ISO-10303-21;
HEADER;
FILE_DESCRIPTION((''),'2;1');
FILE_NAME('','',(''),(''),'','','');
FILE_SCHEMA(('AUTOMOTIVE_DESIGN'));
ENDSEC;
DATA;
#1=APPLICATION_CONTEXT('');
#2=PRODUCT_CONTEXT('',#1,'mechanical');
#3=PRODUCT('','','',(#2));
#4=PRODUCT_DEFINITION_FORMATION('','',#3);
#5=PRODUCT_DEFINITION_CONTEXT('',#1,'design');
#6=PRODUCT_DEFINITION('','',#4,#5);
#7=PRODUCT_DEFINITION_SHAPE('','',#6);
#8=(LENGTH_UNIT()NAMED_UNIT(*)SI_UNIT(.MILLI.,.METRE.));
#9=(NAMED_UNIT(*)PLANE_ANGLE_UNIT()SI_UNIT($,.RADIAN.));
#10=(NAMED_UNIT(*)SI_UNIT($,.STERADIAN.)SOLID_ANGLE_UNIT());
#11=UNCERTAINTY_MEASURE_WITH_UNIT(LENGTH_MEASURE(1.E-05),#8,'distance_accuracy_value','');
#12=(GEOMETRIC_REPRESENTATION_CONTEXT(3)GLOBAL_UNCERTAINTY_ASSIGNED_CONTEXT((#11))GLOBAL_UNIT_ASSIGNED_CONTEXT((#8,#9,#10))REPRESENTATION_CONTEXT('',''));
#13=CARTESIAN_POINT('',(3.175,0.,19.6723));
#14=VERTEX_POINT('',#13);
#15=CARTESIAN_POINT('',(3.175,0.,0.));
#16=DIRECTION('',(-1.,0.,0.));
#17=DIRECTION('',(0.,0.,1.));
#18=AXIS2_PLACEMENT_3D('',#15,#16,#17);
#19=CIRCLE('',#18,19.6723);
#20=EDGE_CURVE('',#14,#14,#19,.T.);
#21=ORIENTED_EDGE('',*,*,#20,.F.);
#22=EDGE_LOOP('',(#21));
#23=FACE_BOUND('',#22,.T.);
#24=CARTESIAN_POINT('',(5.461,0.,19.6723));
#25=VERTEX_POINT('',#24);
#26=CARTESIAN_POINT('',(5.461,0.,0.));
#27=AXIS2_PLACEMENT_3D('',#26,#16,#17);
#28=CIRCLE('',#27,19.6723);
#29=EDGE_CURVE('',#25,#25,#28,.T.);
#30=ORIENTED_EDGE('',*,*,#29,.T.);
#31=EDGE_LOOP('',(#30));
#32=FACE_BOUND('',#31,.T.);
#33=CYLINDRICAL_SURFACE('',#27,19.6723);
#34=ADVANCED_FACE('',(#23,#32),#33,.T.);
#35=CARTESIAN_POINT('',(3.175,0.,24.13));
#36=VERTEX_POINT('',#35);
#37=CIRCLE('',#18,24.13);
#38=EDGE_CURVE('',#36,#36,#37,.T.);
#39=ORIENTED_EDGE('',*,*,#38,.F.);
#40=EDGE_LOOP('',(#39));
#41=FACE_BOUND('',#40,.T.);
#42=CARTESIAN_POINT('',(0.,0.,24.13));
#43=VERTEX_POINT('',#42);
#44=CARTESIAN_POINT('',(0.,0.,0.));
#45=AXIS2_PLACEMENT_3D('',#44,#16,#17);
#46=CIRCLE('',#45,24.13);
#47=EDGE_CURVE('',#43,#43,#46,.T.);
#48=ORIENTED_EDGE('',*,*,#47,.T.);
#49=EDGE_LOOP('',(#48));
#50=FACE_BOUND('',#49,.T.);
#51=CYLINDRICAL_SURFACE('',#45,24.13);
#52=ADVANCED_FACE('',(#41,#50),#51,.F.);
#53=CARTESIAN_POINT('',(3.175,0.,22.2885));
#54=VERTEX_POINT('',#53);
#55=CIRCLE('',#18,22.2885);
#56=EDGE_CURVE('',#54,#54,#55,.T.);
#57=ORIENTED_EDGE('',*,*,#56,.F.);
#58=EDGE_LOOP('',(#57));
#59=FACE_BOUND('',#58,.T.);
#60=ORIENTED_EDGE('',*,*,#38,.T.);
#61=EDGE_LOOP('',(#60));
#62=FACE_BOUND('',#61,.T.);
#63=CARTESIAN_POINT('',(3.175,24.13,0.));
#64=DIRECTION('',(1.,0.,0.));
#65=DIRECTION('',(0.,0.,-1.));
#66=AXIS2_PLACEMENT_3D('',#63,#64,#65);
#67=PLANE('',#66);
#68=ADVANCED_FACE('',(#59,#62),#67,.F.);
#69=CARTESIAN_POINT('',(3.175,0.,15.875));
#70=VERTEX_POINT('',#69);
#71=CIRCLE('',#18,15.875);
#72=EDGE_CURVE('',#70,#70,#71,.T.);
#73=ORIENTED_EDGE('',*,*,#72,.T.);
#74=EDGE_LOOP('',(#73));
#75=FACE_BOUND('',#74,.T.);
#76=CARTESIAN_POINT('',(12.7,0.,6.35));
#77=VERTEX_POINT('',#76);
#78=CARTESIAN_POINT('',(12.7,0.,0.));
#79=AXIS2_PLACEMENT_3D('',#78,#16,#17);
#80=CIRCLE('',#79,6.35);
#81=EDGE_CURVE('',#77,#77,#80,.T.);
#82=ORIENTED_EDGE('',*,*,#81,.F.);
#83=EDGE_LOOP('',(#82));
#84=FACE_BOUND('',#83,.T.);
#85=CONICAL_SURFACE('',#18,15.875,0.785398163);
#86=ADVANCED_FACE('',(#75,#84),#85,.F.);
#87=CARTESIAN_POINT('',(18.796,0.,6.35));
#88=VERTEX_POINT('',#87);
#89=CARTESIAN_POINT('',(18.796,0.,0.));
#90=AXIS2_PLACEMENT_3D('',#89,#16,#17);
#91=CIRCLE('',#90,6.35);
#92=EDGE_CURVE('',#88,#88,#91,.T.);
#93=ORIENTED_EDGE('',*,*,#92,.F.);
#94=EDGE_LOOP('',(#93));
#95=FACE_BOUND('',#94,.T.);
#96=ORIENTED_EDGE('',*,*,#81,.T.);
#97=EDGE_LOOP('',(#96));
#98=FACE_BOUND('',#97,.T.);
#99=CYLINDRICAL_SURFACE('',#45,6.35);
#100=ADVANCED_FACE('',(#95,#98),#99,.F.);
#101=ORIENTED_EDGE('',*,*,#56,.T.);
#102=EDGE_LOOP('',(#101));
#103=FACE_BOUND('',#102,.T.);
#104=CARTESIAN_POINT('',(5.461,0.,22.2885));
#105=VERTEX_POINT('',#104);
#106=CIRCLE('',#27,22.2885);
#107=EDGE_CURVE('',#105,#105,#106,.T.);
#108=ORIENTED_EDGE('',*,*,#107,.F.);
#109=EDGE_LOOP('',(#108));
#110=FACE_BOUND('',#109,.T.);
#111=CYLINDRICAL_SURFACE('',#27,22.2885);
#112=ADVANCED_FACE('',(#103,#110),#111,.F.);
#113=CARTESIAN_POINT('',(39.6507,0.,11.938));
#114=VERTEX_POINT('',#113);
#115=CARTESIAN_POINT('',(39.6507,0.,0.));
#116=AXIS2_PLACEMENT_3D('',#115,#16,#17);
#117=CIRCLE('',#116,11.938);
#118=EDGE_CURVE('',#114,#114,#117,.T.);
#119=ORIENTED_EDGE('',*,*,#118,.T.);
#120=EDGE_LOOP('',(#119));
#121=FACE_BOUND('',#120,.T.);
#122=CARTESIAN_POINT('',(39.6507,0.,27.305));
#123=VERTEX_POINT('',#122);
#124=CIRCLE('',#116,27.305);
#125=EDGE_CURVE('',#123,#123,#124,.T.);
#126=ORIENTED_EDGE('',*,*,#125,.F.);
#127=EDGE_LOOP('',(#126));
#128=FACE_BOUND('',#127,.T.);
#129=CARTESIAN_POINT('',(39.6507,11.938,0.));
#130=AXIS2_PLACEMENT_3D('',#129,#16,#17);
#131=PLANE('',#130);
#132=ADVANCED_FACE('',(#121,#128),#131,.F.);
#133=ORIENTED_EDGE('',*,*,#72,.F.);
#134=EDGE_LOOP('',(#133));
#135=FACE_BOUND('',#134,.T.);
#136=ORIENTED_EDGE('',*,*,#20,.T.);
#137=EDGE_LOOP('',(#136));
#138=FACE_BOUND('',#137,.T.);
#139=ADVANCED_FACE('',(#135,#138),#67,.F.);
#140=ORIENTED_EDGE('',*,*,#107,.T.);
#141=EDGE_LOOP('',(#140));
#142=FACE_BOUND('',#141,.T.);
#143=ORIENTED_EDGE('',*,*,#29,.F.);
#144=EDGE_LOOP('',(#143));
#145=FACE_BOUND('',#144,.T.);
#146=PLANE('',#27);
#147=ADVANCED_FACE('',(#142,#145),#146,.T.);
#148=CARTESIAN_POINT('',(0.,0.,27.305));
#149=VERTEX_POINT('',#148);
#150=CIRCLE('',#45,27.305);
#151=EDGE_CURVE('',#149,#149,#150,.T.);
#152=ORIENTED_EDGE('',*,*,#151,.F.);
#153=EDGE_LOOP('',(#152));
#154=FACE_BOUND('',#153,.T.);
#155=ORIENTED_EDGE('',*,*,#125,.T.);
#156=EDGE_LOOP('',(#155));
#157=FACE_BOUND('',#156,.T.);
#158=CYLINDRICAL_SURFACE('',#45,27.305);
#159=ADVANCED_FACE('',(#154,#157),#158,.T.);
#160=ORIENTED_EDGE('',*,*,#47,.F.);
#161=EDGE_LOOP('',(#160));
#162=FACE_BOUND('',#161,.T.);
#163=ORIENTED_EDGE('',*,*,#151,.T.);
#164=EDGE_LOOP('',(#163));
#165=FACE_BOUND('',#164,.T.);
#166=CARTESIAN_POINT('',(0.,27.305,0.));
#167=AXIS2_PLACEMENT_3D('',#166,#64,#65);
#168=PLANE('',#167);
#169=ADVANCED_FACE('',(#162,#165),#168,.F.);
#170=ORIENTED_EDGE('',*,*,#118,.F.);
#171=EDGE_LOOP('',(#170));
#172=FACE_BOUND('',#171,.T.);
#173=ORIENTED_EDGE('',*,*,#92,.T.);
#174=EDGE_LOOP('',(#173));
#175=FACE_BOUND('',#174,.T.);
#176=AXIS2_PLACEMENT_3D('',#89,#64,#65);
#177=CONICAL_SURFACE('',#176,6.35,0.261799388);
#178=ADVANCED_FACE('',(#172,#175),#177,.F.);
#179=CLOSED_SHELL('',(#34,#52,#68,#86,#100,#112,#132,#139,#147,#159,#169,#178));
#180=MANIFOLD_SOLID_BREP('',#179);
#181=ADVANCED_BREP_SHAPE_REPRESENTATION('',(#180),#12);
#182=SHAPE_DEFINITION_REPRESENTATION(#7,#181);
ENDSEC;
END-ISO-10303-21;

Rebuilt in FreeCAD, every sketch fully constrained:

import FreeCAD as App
import Part
import Sketcher
from FreeCAD import Vector
Q = App.Units.Quantity


def add_polygon(sketch, points):
    """Adds a closed chain of lines whose ends are joined by coincident constraints."""
    first, n = sketch.GeometryCount, len(points)
    for a, b in zip(points, points[1:] + points[:1]):
        sketch.addGeometry(Part.LineSegment(App.Vector(*a, 0), App.Vector(*b, 0)), False)
    for i in range(n):
        sketch.addConstraint(Sketcher.Constraint("Coincident", first + i, 2, first + (i + 1) % n, 1))

doc = App.newDocument("Part")
body = doc.addObject("PartDesign::Body", "Body")

# Sketch on XY plane
sketch1 = body.newObject("Sketcher::SketchObject", "Sketch")
sketch1.AttachmentSupport = (doc.getObject("XY_Plane"), [""])
sketch1.MapMode = "FlatFace"
add_polygon(sketch1, [(0, 24.1), (3.2, 24.1), (3.2, 15.9), (12.7, 6.3), (18.8, 6.3), (39.7, 11.9), (39.7, 27.3), (0, 27.3)])  # lines 0-7
sketch1.addConstraint(Sketcher.Constraint("Horizontal", 0))
sketch1.addConstraint(Sketcher.Constraint("Vertical", 1))
sketch1.addConstraint(Sketcher.Constraint("Horizontal", 3))
sketch1.addConstraint(Sketcher.Constraint("Vertical", 5))
sketch1.addConstraint(Sketcher.Constraint("Horizontal", 6))
sketch1.addConstraint(Sketcher.Constraint("Vertical", 7))
sketch1.addConstraint(Sketcher.Constraint("PointOnObject", 6, 2, -2))
sketch1.addConstraint(Sketcher.Constraint("Equal", 0, 7))
sketch1.addConstraint(Sketcher.Constraint("Angle", 2, Q("-45 deg")))
sketch1.addConstraint(Sketcher.Constraint("Angle", 4, Q("15 deg")))
sketch1.addConstraint(Sketcher.Constraint("DistanceX", 3, 1, 3, 2, Q("0.24 in")))
sketch1.addConstraint(Sketcher.Constraint("DistanceX", -1, 1, 2, 2, Q("0.5 in")))
sketch1.addConstraint(Sketcher.Constraint("DistanceY", 2, 2, 0, 2, Q("0.7 in")))
sketch1.addConstraint(Sketcher.Constraint("DistanceX", 0, 1, 0, 2, Q("0.125 in")))
sketch1.addConstraint(Sketcher.Constraint("DistanceY", 5, 1, 5, 2, Q("0.605 in")))
sketch1.addConstraint(Sketcher.Constraint("DistanceY", -1, 1, 0, 2, Q("0.95 in")))
revolution = body.newObject("PartDesign::Revolution", "Revolution")
revolution.Profile = sketch1
revolution.ReferenceAxis = (sketch1, ["H_Axis"])
revolution.Angle = 360

# Sketch on YZ plane
sketch2 = body.newObject("Sketcher::SketchObject", "Sketch001")
sketch2.AttachmentSupport = (doc.getObject("YZ_Plane"), [""])
sketch2.MapMode = "FlatFace"
sketch2.AttachmentOffset = App.Placement(Vector(0, 0, 0.125 * 25.4), App.Rotation())
sketch2.addGeometry(Part.Circle(Vector(0, 0, 0), Vector(0, 0, 1), 22), False)
sketch2.addGeometry(Part.Circle(Vector(0, 0, 0), Vector(0, 0, 1), 20), False)
sketch2.addConstraint(Sketcher.Constraint("Coincident", 0, 3, -1, 1))
sketch2.addConstraint(Sketcher.Constraint("Coincident", 1, 3, -1, 1))
sketch2.addConstraint(Sketcher.Constraint("Diameter", 0, Q("1.755 in")))
sketch2.addConstraint(Sketcher.Constraint("Diameter", 1, Q("1.549 in")))
pocket1 = body.newObject("PartDesign::Pocket", "Pocket")
pocket1.Profile = sketch2
pocket1.Length = Q("0.09 in")
pocket1.Reversed = True

doc.recompute()
